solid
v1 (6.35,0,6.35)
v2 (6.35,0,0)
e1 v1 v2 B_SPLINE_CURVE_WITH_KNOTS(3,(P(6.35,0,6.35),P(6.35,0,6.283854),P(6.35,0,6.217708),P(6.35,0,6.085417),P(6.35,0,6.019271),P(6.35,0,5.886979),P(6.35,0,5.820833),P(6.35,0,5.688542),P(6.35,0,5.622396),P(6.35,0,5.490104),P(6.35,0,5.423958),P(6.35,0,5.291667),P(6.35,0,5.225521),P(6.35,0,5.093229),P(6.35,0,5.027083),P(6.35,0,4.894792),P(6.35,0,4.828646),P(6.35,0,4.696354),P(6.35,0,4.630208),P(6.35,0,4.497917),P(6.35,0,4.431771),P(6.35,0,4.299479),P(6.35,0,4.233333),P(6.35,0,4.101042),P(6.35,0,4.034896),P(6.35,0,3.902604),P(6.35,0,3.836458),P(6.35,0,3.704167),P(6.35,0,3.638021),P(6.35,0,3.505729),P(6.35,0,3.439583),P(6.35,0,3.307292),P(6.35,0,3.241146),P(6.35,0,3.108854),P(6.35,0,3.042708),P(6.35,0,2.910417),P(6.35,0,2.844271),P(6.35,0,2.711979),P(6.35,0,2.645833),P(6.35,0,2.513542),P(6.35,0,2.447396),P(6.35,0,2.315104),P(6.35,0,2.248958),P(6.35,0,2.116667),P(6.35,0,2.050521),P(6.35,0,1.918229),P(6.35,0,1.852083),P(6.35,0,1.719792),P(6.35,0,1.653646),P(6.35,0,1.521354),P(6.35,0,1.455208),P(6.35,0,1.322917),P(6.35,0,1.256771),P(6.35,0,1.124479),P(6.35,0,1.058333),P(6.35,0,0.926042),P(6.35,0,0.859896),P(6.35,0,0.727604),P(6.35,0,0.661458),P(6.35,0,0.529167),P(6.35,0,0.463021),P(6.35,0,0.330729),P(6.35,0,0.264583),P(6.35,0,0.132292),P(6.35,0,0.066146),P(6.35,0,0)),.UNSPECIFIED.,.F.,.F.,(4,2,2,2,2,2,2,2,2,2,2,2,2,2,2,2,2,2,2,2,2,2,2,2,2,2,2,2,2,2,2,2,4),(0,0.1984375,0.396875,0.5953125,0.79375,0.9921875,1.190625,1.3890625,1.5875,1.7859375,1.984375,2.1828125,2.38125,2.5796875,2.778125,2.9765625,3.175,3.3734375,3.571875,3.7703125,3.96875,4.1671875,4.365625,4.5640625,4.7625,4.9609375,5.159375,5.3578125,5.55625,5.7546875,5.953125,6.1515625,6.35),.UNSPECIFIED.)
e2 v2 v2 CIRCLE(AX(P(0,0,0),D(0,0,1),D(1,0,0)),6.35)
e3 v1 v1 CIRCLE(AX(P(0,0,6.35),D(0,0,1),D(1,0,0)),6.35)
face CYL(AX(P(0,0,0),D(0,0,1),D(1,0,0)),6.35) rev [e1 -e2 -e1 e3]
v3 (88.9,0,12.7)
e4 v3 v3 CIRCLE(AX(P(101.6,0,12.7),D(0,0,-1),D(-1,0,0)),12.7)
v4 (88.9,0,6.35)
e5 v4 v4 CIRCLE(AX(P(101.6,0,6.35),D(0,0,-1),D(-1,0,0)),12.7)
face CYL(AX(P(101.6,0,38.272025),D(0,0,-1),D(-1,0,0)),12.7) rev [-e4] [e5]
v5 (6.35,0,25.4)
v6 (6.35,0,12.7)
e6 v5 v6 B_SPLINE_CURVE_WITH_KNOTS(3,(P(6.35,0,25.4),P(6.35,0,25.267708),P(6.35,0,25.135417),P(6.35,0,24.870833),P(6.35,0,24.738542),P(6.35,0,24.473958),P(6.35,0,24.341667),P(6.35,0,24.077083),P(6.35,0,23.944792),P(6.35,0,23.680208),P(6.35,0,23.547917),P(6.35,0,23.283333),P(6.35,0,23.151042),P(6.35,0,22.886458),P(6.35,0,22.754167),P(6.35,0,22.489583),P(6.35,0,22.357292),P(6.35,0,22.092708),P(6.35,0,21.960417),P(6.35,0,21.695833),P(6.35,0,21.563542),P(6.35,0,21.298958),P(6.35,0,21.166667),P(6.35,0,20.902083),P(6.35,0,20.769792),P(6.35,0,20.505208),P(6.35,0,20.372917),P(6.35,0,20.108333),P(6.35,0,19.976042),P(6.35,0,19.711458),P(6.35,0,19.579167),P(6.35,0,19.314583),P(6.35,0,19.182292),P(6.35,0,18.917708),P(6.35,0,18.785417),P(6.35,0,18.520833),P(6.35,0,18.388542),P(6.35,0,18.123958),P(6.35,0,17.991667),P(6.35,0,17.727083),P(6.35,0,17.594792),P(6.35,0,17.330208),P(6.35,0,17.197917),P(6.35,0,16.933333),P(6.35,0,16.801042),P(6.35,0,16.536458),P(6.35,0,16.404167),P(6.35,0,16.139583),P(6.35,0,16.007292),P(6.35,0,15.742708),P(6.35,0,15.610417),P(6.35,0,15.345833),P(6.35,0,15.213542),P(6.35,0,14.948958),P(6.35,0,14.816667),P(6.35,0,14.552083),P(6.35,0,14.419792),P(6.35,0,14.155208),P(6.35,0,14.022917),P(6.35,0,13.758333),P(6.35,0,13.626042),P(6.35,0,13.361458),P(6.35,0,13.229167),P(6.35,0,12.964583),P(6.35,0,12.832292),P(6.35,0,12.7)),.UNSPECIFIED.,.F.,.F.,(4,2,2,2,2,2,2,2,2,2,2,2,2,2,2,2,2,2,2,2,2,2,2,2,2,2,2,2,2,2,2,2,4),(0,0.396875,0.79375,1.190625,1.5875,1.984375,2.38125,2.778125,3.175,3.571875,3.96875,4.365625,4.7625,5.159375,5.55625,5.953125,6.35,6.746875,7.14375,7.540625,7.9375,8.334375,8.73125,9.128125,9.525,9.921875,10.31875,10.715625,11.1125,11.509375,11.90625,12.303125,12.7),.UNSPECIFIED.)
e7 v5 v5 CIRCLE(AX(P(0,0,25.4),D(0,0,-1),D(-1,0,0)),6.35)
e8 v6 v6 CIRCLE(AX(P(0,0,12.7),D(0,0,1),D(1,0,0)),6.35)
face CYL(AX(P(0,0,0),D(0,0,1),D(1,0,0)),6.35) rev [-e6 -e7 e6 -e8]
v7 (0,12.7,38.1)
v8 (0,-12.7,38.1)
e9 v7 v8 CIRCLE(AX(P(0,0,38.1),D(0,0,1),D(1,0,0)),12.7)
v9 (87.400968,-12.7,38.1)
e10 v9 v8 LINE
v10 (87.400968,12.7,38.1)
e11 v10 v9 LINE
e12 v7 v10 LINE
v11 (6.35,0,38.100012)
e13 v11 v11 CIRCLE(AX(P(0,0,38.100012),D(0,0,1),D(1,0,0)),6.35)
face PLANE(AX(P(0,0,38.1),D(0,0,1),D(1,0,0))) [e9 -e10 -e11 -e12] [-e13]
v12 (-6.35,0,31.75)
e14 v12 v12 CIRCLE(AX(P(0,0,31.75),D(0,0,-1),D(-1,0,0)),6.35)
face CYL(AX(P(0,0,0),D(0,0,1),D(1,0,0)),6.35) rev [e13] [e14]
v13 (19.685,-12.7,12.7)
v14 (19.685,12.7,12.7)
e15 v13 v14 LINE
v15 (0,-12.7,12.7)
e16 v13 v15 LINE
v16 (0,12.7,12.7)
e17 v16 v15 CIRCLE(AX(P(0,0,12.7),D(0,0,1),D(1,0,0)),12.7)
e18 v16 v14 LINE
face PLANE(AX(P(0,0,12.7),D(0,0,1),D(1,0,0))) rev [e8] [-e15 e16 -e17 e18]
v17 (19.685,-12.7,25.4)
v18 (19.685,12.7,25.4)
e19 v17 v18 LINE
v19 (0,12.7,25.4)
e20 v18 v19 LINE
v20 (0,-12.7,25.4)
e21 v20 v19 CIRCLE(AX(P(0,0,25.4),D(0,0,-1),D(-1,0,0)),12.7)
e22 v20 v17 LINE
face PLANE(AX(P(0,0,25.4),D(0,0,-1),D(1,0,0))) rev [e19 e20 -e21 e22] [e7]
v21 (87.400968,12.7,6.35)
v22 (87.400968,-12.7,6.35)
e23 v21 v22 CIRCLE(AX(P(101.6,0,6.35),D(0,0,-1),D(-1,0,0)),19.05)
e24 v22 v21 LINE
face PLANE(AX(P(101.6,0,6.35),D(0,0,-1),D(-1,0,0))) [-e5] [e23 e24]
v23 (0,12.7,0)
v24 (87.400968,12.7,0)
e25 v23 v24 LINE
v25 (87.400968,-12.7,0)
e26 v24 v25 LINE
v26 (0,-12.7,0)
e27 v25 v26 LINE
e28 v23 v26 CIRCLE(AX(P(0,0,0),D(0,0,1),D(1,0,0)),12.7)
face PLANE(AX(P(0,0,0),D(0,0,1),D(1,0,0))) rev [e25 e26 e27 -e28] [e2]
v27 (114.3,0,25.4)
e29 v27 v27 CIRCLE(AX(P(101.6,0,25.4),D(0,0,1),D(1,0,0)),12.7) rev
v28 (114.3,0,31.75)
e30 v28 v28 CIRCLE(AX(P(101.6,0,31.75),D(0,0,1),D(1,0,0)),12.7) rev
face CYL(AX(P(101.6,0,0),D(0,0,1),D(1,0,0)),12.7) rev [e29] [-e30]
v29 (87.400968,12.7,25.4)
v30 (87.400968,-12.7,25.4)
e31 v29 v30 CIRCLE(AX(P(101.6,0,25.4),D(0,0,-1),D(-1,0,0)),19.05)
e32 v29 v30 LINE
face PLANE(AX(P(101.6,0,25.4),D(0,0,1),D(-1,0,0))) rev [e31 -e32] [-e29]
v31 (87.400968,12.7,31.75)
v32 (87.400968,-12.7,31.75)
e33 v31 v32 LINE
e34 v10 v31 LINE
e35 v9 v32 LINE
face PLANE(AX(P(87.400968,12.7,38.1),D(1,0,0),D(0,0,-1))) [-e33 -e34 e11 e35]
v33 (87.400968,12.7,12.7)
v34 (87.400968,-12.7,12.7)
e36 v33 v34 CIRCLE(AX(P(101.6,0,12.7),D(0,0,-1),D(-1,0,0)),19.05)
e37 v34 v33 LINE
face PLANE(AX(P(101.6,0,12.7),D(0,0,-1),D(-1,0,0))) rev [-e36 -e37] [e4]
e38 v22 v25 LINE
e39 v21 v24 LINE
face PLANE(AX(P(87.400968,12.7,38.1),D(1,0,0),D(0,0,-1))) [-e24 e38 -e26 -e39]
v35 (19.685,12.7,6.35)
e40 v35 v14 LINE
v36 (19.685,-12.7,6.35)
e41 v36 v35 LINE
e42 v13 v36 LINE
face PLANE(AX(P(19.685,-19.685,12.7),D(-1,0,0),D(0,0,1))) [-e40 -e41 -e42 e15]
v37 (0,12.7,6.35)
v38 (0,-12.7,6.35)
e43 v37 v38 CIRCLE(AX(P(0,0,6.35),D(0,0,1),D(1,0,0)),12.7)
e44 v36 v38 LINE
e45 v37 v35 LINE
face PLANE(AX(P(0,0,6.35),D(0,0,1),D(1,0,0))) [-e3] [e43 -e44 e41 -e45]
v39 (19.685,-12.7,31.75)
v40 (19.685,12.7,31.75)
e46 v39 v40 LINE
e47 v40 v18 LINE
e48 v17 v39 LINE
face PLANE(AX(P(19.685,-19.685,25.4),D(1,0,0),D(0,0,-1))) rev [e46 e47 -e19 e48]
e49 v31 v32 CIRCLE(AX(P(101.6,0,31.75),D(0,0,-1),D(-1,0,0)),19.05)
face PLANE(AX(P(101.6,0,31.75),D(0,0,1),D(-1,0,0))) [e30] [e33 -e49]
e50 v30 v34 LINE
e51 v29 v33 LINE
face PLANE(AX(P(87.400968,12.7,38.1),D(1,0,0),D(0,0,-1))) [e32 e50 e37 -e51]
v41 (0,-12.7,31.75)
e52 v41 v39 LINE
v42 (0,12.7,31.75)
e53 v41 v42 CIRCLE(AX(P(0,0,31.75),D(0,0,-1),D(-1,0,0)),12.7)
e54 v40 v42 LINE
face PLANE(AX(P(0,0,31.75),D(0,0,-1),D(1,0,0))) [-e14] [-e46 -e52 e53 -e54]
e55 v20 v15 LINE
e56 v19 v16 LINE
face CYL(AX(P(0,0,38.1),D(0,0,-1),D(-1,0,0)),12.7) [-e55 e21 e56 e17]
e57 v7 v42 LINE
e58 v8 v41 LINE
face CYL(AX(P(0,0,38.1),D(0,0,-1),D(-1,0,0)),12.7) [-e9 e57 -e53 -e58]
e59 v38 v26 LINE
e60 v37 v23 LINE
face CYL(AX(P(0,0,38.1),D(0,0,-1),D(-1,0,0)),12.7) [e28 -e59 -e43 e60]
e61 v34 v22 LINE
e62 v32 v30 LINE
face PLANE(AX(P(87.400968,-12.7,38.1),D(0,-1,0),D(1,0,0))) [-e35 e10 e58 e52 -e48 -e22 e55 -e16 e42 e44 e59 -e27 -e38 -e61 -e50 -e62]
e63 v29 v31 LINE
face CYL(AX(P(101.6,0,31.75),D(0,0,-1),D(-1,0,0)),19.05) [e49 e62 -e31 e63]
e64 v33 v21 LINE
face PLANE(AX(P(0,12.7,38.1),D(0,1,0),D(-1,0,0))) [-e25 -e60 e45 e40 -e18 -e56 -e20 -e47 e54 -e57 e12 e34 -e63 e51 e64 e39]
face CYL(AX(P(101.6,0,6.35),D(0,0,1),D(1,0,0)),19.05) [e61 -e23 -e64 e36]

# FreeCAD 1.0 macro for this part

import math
import FreeCAD as App
import Part
import Sketcher

V = App.Vector
Q = App.Units.Quantity

doc = App.newDocument("Part")
body = doc.addObject("PartDesign::Body", "Body")

# Sketch on XY plane
sketch1 = body.newObject("Sketcher::SketchObject", "Sketch")
sketch1.AttachmentSupport = (doc.getObject("XY_Plane"), [""])
sketch1.MapMode = "FlatFace"
sketch1.addGeometry([
    Part.LineSegment(V(87, 13, 0), V(0, 13, 0)),
    Part.ArcOfCircle(Part.Circle(V(0, 0, 0), V(0, 0, 1), 13), math.radians(90), math.radians(270)),
    Part.LineSegment(V(0, -13, 0), V(87, -13, 0)),
    Part.LineSegment(V(87, -13, 0), V(87, 13, 0)),
], False)
sketch1.addConstraint([
    Sketcher.Constraint("Tangent", 0, 2, 1, 1),
    Sketcher.Constraint("Tangent", 1, 2, 2, 1),
    Sketcher.Constraint("Coincident", 2, 2, 3, 1),
    Sketcher.Constraint("Coincident", 3, 2, 0, 1),
    Sketcher.Constraint("Horizontal", 0),
    Sketcher.Constraint("Horizontal", 2),
    Sketcher.Constraint("Vertical", 3),
    Sketcher.Constraint("Coincident", 1, 3, -1, 1),
    Sketcher.Constraint("Radius", 1, Q("0.5 in")),
    Sketcher.Constraint("DistanceX", 0, 2, 0, 1, 87.400968),
])
pad1 = body.newObject("PartDesign::Pad", "Pad")
pad1.Profile = sketch1
pad1.Length = Q("1.5 in")

# Sketch on XY plane
sketch2 = body.newObject("Sketcher::SketchObject", "Sketch001")
sketch2.AttachmentSupport = (doc.getObject("XY_Plane"), [""])
sketch2.MapMode = "FlatFace"
sketch2.AttachmentOffset = App.Placement(V(0, 0, 0.25 * 25.4), App.Rotation())
sketch2.addGeometry([
    Part.LineSegment(V(0, -20, 0), V(20, -20, 0)),
    Part.LineSegment(V(20, -20, 0), V(20, 20, 0)),
    Part.LineSegment(V(20, 20, 0), V(0, 20, 0)),
    Part.ArcOfCircle(Part.Circle(V(0, 0, 0), V(0, 0, 1), 20), math.radians(90), math.radians(270)),
], False)
sketch2.addConstraint([
    Sketcher.Constraint("Coincident", 0, 2, 1, 1),
    Sketcher.Constraint("Coincident", 1, 2, 2, 1),
    Sketcher.Constraint("Tangent", 2, 2, 3, 1),
    Sketcher.Constraint("Tangent", 3, 2, 0, 1),
    Sketcher.Constraint("Horizontal", 0),
    Sketcher.Constraint("Vertical", 1),
    Sketcher.Constraint("Horizontal", 2),
    Sketcher.Constraint("Coincident", 3, 3, -1, 1),
    Sketcher.Constraint("Radius", 3, Q("0.775 in")),
    Sketcher.Constraint("DistanceX", 0, 1, 0, 2, Q("0.775 in")),
])
pocket1 = body.newObject("PartDesign::Pocket", "Pocket")
pocket1.Profile = sketch2
pocket1.Length = Q("0.25 in")
pocket1.Reversed = True
doc.recompute()

datumplane = body.newObject("PartDesign::Plane", "DatumPlane")
datumplane.AttachmentSupport = (doc.getObject("XY_Plane"), [""])
datumplane.MapMode = "FlatFace"
datumplane.AttachmentOffset = App.Placement(V(0, 0, 0.75 * 25.4), App.Rotation())
mirrored = body.newObject("PartDesign::Mirrored", "Mirrored")
mirrored.Originals = [pocket1]
mirrored.MirrorPlane = (datumplane, [""])
body.Tip = mirrored

# Sketch on XY plane
sketch3 = body.newObject("Sketcher::SketchObject", "Sketch002")
sketch3.AttachmentSupport = (doc.getObject("XY_Plane"), [""])
sketch3.MapMode = "FlatFace"
sketch3.AttachmentOffset = App.Placement(V(0, 0, 1.5 * 25.4), App.Rotation())
sketch3.addGeometry(Part.Circle(V(0, 0, 0), V(0, 0, 1), 6), False)
sketch3.addConstraint([
    Sketcher.Constraint("Coincident", 0, 3, -1, 1),
    Sketcher.Constraint("Diameter", 0, Q("0.5 in")),
])
pocket2 = body.newObject("PartDesign::Pocket", "Pocket001")
pocket2.Profile = sketch3
pocket2.Type = "ThroughAll"
pocket2.Midplane = True

# Sketch on XY plane
sketch4 = body.newObject("Sketcher::SketchObject", "Sketch003")
sketch4.AttachmentSupport = (doc.getObject("XY_Plane"), [""])
sketch4.MapMode = "FlatFace"
sketch4.AttachmentOffset = App.Placement(V(0, 0, 0.5 * 25.4), App.Rotation())
sketch4.addGeometry(Part.Circle(V(102, 0, 0), V(0, 0, 1), 19), False)
sketch4.addConstraint([
    Sketcher.Constraint("PointOnObject", 0, 3, -1),
    Sketcher.Constraint("Diameter", 0, Q("1.5 in")),
    Sketcher.Constraint("DistanceX", -1, 1, 0, 3, Q("4 in")),
])
pad2 = body.newObject("PartDesign::Pad", "Pad001")
pad2.Profile = sketch4
pad2.Length = Q("0.25 in")
pad2.Reversed = True

# Sketch on XY plane
sketch5 = body.newObject("Sketcher::SketchObject", "Sketch004")
sketch5.AttachmentSupport = (doc.getObject("XY_Plane"), [""])
sketch5.MapMode = "FlatFace"
sketch5.AttachmentOffset = App.Placement(V(0, 0, 0.25 * 25.4), App.Rotation())
sketch5.addGeometry(Part.Circle(V(102, 0, 0), V(0, 0, 1), 13), False)
sketch5.addConstraint([
    Sketcher.Constraint("PointOnObject", 0, 3, -1),
    Sketcher.Constraint("Diameter", 0, Q("1 in")),
    Sketcher.Constraint("DistanceX", -1, 1, 0, 3, Q("4 in")),
])
pocket3 = body.newObject("PartDesign::Pocket", "Pocket002")
pocket3.Profile = sketch5
pocket3.Length = 254.407508
pocket3.Midplane = True
doc.recompute()

datumplane2 = body.newObject("PartDesign::Plane", "DatumPlane001")
datumplane2.AttachmentSupport = (doc.getObject("XY_Plane"), [""])
datumplane2.MapMode = "FlatFace"
datumplane2.AttachmentOffset = App.Placement(V(0, 0, 0.75 * 25.4), App.Rotation())
mirrored2 = body.newObject("PartDesign::Mirrored", "Mirrored001")
mirrored2.Originals = [pad2, pocket3]
mirrored2.MirrorPlane = (datumplane2, [""])
body.Tip = mirrored2

doc.recompute()
